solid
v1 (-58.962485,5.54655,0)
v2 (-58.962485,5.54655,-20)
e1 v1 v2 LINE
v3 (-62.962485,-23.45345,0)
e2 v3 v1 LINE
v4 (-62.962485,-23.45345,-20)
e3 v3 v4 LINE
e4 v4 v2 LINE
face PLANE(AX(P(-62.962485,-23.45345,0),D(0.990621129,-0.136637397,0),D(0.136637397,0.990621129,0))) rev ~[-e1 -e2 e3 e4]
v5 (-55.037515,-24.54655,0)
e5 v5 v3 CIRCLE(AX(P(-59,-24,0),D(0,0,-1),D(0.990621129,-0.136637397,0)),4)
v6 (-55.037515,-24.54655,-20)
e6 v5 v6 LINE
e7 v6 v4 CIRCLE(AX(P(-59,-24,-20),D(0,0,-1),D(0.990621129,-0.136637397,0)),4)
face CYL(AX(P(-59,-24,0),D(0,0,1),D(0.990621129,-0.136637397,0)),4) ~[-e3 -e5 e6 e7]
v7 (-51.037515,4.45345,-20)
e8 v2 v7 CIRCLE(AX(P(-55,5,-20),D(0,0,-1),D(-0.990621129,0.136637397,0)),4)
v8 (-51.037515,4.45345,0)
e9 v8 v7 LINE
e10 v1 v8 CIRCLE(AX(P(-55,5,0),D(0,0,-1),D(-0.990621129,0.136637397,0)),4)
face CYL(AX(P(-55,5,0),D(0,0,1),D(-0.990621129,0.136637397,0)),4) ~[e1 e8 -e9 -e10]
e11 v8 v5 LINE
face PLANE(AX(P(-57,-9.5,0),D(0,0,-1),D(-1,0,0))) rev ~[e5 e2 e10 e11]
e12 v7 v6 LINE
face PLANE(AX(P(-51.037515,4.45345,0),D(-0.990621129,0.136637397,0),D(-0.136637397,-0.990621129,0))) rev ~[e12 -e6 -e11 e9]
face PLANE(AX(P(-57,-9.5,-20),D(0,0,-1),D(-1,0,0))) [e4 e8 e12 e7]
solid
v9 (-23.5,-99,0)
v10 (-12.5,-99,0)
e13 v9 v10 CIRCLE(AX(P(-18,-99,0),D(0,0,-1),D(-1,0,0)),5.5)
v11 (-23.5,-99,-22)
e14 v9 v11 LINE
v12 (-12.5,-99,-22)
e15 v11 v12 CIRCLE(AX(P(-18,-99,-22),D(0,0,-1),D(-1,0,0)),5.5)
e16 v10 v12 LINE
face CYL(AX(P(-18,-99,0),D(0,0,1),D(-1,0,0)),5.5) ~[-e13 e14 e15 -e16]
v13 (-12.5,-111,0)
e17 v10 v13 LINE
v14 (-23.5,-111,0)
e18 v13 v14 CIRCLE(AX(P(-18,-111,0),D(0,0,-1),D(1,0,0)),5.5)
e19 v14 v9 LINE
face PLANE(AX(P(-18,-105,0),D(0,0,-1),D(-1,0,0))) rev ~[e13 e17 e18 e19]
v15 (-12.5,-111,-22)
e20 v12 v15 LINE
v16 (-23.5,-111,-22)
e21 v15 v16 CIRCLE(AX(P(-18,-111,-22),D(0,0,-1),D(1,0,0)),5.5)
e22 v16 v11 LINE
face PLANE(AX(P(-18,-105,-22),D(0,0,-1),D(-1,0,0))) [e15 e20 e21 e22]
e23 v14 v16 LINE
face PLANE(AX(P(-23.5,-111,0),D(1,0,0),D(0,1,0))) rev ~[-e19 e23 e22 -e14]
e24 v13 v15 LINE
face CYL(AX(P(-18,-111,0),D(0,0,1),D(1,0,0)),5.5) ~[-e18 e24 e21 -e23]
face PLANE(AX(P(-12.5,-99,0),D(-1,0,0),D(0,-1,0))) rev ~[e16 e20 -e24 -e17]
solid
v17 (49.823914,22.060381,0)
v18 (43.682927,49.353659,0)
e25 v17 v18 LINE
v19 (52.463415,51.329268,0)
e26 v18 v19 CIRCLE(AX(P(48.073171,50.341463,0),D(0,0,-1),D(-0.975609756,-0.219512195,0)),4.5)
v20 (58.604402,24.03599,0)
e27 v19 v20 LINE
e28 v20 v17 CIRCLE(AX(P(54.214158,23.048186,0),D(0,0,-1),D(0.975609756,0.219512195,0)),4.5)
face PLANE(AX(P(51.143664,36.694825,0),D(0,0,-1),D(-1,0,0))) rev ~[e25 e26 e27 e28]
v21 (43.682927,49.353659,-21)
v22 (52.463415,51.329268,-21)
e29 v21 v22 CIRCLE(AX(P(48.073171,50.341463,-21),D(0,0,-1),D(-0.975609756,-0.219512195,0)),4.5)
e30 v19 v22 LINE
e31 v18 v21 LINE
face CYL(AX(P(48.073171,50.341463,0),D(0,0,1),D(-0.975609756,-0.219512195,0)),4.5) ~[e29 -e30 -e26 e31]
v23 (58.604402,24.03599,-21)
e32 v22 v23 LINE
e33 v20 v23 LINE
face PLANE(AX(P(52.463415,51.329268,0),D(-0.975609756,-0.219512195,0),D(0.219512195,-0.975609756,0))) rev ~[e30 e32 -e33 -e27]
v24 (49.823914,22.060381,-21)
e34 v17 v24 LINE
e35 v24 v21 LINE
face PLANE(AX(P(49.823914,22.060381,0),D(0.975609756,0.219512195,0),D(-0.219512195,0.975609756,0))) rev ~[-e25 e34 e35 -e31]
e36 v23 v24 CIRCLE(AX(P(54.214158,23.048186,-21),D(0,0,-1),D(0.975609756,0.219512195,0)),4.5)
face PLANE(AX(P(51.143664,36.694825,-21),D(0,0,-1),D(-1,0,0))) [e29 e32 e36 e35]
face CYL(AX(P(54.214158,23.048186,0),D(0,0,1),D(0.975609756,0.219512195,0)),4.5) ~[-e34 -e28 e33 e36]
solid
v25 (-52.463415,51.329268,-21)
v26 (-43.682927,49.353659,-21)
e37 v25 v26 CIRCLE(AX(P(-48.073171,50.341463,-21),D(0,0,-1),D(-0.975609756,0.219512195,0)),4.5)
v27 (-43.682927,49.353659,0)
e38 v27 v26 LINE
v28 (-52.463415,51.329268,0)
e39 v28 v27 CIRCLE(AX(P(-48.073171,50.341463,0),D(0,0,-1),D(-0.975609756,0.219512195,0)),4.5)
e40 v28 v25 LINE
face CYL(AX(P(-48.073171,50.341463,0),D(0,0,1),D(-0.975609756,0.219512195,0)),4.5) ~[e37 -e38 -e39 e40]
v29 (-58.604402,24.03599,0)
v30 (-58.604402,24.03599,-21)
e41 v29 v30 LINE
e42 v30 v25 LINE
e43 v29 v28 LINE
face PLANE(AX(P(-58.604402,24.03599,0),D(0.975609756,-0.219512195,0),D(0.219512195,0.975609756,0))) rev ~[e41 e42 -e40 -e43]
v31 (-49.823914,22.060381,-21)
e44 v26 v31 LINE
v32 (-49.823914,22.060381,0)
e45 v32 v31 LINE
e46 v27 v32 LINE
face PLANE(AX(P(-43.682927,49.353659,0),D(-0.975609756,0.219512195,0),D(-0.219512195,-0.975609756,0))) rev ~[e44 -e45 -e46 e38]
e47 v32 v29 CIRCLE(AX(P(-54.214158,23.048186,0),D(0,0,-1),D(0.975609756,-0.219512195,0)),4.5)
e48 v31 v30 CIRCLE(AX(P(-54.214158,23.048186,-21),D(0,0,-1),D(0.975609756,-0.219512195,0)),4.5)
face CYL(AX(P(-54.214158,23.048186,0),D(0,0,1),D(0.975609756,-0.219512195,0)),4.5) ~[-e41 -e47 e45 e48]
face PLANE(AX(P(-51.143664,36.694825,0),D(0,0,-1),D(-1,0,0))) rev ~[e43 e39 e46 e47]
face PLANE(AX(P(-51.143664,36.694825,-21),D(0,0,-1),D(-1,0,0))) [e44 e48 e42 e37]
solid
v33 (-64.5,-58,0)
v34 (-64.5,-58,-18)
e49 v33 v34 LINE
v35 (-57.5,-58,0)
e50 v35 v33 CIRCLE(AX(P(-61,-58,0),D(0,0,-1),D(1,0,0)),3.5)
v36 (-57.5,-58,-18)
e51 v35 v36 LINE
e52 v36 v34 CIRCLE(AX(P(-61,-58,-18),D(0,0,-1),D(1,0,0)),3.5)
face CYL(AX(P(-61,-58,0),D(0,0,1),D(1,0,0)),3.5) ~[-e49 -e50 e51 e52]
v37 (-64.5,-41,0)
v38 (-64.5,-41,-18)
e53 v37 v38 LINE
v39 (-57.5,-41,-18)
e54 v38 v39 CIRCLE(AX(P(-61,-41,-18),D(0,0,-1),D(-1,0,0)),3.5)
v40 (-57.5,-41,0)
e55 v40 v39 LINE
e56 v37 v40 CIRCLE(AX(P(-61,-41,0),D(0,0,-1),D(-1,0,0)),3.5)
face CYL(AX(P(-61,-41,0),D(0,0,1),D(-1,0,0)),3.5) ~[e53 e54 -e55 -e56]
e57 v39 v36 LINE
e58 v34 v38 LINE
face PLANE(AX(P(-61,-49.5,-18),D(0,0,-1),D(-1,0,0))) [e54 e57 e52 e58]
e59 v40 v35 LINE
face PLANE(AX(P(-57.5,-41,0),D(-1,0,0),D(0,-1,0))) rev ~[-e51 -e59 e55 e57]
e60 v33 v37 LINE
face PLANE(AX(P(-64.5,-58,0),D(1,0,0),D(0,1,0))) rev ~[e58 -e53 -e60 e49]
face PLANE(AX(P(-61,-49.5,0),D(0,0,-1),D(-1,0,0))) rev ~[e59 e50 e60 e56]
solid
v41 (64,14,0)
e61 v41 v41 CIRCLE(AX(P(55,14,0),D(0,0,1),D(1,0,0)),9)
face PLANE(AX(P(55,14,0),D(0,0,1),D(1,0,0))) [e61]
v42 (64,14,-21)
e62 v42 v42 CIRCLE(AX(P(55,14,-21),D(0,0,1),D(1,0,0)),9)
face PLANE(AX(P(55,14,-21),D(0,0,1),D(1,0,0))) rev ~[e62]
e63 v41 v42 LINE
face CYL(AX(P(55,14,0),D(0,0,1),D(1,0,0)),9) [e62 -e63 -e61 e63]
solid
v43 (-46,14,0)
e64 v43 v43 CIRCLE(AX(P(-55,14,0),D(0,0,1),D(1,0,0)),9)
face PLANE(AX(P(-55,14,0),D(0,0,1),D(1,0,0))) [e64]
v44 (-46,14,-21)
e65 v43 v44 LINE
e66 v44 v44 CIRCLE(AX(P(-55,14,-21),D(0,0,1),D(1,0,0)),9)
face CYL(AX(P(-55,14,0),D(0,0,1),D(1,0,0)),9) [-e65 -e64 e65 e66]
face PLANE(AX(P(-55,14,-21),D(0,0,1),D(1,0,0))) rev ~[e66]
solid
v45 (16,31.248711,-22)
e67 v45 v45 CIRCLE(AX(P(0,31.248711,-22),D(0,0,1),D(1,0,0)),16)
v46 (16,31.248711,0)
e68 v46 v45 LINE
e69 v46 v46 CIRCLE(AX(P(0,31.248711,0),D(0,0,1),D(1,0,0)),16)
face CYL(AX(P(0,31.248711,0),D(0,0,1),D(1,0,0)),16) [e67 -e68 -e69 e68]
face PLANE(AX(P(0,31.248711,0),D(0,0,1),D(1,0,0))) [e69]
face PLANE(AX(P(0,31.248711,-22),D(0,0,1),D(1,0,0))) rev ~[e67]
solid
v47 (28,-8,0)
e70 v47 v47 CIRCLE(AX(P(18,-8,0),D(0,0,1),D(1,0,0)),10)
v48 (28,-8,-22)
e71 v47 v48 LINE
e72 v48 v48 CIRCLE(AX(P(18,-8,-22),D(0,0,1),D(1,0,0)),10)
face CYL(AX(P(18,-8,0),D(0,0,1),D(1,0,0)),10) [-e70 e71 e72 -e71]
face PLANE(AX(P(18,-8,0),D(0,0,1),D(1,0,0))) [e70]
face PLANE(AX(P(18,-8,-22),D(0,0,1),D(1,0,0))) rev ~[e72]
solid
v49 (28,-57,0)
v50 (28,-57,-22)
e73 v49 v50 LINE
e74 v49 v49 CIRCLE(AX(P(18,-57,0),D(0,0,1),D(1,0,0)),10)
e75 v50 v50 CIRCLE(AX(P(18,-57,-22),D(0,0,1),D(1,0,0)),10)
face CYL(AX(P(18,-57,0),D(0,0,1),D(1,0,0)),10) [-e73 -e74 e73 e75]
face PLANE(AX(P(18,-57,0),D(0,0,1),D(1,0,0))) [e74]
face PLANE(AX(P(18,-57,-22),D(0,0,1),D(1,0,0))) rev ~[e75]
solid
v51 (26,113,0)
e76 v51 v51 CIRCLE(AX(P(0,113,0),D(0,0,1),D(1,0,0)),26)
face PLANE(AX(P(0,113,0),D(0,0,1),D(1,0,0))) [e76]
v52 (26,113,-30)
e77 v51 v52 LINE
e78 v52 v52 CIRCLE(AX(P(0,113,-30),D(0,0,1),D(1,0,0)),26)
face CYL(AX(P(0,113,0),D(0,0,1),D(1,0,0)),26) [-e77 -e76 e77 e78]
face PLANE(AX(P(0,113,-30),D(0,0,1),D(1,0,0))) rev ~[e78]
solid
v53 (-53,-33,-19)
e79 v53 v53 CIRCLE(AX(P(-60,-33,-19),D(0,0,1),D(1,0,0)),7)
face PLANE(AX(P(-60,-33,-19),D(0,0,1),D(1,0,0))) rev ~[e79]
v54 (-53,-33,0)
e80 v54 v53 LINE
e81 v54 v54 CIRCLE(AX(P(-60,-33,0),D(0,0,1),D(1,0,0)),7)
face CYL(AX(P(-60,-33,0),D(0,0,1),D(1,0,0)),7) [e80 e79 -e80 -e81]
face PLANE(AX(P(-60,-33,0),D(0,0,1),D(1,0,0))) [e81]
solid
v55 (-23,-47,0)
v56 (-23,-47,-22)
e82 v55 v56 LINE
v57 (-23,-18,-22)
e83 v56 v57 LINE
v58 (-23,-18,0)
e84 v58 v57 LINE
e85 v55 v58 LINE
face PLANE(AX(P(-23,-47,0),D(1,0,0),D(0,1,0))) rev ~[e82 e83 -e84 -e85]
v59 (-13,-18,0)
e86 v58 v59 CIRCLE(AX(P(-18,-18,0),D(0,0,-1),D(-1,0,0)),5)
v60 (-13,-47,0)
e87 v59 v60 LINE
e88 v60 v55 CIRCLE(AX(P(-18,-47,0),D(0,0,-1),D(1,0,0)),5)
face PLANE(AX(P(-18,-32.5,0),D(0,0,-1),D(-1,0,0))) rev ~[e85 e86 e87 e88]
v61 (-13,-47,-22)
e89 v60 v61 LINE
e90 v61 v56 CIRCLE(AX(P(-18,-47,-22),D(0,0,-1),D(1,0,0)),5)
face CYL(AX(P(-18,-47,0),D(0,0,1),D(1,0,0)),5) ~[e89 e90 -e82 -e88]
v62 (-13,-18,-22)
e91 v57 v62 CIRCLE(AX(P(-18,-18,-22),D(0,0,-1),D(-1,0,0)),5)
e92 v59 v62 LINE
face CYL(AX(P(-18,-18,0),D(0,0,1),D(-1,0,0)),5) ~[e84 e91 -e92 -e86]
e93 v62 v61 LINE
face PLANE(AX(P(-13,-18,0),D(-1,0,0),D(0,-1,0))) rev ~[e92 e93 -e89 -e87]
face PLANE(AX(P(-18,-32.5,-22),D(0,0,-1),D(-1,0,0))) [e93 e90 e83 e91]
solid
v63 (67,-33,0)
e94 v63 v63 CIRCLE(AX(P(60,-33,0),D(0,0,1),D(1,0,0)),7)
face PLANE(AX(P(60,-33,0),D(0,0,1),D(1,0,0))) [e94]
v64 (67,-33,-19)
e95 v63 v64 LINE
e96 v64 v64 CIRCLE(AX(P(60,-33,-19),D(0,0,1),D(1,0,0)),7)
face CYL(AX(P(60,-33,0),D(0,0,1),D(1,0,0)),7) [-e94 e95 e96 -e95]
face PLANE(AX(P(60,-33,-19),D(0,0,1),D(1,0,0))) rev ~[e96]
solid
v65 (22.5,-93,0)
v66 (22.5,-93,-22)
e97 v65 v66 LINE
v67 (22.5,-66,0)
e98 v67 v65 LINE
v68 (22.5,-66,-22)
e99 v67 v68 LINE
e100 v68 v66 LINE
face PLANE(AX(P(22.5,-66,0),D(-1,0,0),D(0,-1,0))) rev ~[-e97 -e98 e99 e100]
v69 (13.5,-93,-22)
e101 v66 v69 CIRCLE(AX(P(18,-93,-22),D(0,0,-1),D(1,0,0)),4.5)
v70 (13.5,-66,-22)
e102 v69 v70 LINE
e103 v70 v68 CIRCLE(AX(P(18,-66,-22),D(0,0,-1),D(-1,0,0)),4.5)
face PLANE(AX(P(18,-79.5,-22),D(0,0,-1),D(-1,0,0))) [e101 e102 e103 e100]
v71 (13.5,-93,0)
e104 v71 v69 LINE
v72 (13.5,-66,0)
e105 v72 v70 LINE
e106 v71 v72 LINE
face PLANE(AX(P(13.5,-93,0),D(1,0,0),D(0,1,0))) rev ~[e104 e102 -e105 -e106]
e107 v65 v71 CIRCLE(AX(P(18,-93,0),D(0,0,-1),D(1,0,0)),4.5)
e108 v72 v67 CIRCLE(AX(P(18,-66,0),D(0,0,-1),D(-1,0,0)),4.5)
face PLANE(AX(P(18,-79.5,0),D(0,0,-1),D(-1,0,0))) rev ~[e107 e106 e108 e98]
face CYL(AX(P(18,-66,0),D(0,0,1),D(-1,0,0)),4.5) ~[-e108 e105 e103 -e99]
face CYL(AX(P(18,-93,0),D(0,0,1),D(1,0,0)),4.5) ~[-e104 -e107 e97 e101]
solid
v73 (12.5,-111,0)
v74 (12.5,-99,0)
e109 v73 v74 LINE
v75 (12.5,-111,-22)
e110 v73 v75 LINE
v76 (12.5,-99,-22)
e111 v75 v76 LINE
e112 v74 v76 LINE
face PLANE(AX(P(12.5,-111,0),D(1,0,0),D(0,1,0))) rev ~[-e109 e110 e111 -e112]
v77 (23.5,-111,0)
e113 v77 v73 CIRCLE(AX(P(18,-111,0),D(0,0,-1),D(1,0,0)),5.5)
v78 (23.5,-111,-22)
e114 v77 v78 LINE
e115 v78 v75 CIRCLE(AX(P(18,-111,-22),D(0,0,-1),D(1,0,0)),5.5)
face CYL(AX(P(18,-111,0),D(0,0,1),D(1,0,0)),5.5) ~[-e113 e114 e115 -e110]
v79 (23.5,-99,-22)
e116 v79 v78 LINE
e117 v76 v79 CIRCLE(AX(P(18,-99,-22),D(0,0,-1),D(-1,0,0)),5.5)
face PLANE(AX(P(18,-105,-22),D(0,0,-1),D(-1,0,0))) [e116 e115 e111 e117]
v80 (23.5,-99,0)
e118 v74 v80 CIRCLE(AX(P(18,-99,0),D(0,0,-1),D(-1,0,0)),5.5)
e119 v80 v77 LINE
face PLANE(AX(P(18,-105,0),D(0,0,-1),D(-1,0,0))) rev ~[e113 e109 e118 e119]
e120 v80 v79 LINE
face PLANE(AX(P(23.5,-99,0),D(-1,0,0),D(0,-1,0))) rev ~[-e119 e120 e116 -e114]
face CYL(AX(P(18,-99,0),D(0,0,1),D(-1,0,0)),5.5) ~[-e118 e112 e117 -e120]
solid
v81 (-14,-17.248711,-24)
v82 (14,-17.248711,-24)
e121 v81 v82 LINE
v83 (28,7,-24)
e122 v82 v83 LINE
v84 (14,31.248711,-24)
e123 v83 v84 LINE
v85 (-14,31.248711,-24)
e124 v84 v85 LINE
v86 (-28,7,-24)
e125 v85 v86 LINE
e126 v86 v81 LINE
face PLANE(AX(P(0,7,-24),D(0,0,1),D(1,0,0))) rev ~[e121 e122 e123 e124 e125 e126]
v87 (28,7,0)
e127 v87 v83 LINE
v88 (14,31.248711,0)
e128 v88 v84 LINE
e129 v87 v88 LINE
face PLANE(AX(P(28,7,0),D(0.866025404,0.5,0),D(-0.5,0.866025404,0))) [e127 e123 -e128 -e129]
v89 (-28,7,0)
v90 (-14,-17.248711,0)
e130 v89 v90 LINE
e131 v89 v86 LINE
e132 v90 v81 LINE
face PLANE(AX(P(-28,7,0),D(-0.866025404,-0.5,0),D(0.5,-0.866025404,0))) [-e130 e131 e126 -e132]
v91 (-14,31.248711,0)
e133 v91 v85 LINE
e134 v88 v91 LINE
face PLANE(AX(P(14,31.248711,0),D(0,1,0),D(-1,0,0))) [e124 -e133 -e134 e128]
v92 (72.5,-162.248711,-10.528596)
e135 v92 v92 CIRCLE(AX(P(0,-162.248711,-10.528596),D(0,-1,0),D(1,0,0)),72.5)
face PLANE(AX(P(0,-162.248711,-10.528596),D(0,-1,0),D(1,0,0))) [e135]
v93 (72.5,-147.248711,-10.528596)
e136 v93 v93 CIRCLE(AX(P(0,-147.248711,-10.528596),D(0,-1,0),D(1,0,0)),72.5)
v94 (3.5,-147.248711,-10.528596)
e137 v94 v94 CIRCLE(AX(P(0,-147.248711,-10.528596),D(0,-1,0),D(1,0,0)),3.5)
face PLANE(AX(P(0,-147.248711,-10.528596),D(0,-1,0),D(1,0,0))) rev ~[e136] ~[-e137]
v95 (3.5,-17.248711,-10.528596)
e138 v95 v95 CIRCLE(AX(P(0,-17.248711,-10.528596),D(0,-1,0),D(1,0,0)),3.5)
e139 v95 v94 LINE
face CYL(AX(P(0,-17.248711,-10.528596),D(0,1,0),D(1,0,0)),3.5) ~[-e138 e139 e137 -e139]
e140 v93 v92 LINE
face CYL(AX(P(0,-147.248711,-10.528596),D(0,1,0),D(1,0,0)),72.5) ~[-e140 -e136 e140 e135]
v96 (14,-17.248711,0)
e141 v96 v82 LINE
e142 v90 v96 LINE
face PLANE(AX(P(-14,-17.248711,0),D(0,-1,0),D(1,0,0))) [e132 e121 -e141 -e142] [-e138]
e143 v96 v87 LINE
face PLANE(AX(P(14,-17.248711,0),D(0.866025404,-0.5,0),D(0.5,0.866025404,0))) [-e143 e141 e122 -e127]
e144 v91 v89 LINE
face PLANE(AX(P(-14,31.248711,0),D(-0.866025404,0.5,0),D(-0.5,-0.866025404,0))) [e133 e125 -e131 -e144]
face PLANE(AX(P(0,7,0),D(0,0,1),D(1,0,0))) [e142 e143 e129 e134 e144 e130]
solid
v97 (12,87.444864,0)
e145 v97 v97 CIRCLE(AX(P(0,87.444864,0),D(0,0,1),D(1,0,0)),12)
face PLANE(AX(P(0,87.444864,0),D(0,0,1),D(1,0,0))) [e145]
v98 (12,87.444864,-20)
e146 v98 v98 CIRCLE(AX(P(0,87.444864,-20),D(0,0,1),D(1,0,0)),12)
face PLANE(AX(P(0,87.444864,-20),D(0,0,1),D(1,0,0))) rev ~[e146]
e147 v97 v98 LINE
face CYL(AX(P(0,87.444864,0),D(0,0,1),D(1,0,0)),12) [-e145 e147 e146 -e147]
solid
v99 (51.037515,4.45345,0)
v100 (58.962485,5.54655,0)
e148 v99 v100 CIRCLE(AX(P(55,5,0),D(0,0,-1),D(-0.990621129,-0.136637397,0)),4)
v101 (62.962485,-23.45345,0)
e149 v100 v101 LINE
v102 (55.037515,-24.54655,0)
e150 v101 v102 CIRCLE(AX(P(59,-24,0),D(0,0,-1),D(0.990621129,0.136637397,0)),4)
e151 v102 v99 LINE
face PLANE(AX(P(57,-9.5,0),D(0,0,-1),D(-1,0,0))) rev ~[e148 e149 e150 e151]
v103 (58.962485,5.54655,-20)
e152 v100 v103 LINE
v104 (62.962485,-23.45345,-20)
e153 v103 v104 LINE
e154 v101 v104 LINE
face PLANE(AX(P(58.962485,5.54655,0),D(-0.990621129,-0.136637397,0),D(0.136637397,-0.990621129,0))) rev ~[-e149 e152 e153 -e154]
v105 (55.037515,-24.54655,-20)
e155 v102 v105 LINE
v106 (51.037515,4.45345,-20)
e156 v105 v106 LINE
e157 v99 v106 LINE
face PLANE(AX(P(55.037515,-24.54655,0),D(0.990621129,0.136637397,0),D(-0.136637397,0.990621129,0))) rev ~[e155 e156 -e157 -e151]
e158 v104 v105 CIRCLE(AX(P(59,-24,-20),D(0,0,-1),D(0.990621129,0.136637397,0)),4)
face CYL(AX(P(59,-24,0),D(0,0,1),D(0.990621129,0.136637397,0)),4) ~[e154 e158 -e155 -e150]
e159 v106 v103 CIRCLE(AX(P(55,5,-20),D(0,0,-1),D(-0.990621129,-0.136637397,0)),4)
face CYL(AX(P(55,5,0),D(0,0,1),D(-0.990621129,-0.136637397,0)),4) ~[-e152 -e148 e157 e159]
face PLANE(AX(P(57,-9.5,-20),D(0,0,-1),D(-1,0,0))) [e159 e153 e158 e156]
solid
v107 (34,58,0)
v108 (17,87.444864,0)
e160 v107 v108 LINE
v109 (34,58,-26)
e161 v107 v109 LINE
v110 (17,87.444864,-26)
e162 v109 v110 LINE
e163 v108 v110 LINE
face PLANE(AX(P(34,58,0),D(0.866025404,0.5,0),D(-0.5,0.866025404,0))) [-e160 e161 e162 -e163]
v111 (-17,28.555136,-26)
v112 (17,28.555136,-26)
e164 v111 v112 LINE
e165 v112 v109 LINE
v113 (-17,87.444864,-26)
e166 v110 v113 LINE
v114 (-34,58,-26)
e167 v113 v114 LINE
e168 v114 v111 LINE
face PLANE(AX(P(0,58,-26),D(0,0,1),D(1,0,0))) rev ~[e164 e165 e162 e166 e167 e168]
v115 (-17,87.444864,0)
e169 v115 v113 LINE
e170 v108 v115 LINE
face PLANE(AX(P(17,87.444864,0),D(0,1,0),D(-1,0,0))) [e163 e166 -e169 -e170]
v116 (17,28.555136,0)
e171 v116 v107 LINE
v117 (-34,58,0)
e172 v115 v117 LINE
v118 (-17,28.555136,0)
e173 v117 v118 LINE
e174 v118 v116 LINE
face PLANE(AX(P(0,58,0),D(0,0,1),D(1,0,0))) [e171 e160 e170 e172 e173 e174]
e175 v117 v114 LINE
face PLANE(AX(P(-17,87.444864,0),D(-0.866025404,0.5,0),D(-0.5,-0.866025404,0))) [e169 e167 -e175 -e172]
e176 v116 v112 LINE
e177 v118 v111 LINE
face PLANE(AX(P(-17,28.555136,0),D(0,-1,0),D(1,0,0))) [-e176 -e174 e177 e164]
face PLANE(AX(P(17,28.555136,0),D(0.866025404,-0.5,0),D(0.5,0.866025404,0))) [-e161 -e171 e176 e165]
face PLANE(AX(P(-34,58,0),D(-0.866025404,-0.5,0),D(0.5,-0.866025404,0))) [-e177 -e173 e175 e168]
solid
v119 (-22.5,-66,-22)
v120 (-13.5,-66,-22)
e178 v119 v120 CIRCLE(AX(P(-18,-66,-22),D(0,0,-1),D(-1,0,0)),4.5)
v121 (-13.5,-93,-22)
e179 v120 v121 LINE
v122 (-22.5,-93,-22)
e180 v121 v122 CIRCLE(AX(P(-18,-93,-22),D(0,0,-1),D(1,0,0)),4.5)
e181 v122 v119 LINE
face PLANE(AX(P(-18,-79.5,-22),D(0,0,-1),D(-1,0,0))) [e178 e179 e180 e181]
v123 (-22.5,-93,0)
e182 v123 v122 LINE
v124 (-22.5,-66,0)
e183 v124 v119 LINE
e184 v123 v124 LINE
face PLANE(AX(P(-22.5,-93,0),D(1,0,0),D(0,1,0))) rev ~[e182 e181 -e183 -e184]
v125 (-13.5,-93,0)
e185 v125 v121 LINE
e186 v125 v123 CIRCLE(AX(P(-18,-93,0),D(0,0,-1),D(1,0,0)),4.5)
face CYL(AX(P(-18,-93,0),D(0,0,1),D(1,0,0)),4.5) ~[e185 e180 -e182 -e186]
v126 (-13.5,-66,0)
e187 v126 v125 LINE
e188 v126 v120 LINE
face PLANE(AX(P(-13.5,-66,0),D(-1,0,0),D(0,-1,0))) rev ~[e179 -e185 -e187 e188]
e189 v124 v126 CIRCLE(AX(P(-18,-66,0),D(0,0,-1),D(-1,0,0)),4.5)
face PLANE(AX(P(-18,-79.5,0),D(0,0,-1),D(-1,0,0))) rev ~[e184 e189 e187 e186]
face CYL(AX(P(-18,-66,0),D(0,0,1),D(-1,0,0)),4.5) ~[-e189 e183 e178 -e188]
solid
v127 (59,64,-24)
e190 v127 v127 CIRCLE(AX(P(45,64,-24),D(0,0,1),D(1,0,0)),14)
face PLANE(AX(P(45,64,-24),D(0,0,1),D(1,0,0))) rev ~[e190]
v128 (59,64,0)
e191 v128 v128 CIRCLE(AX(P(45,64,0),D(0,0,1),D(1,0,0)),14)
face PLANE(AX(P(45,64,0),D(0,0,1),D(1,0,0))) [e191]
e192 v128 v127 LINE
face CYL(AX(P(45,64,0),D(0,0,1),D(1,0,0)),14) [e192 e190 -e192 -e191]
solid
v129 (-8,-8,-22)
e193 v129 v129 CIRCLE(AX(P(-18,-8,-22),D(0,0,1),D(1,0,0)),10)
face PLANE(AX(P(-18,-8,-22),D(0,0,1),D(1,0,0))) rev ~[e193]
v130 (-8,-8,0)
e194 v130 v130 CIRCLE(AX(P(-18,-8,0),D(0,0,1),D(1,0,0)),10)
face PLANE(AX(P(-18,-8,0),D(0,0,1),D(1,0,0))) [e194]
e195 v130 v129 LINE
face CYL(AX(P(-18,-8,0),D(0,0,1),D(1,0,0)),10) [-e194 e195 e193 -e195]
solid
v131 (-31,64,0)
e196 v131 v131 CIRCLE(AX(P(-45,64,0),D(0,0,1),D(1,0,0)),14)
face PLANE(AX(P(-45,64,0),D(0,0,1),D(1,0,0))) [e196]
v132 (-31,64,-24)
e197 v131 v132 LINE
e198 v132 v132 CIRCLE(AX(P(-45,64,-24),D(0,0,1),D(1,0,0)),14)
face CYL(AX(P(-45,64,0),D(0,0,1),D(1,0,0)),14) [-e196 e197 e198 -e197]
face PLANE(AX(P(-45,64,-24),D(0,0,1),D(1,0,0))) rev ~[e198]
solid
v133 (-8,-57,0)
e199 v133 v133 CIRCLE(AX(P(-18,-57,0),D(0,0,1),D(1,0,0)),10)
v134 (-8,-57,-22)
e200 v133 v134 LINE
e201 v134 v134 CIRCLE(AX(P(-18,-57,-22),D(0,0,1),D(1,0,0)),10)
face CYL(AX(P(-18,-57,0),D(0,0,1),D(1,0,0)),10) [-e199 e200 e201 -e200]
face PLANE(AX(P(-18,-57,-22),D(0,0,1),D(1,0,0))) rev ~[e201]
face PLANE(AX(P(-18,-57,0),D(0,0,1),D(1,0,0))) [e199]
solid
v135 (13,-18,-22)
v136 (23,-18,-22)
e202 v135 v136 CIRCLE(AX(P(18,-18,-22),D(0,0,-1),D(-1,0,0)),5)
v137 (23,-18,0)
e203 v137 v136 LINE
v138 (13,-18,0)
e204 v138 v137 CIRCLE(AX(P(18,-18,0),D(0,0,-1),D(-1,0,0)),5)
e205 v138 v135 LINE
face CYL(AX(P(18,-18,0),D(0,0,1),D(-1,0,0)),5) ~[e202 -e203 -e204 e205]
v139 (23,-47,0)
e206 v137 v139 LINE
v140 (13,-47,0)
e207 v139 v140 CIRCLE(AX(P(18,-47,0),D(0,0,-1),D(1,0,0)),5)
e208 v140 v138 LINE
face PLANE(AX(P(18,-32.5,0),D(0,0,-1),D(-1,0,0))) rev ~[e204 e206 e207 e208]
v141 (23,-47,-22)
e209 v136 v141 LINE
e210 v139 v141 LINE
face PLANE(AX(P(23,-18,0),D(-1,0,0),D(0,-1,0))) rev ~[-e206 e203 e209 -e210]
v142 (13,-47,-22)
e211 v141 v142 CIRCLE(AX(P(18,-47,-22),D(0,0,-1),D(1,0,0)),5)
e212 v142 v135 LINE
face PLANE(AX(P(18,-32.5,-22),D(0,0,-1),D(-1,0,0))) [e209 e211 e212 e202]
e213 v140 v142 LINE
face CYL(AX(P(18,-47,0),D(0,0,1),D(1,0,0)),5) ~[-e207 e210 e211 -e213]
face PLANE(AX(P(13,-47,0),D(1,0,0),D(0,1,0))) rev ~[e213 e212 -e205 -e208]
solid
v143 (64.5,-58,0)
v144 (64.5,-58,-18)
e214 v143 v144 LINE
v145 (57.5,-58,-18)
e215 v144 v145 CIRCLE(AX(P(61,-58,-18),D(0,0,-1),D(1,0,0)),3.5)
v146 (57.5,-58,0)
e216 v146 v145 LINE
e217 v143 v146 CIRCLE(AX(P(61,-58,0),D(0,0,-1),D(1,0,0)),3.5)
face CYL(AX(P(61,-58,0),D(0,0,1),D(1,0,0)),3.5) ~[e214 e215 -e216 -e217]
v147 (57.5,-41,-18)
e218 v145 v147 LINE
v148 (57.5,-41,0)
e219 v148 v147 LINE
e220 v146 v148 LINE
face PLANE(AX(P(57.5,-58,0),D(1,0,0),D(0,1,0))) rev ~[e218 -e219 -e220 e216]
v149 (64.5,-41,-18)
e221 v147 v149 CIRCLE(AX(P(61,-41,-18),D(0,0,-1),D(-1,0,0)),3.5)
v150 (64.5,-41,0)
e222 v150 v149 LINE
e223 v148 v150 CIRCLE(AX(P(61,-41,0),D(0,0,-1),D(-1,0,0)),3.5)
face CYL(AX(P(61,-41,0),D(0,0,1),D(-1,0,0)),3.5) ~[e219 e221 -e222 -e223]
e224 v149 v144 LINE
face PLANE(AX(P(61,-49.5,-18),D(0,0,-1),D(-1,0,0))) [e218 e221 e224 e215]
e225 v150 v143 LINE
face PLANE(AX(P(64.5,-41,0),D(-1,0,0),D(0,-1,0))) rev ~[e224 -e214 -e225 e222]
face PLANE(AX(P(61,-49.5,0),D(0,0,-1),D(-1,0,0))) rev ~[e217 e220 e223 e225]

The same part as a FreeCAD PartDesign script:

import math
import FreeCAD as App
import Part
import Sketcher
Q = App.Units.Quantity


def add_polygon(sketch, points):
    """Adds a closed chain of lines whose ends are joined by coincident constraints."""
    first, n = sketch.GeometryCount, len(points)
    for a, b in zip(points, points[1:] + points[:1]):
        sketch.addGeometry(Part.LineSegment(App.Vector(*a, 0), App.Vector(*b, 0)), False)
    for i in range(n):
        sketch.addConstraint(Sketcher.Constraint("Coincident", first + i, 2, first + (i + 1) % n, 1))

doc = App.newDocument("Part")
body = doc.addObject("PartDesign::Body", "Body")

sketch1 = body.newObject("Sketcher::SketchObject", "Sketch")
sketch1.AttachmentSupport = (doc.getObject("XY_Plane"), [""])
sketch1.MapMode = "FlatFace"
sketch1.addGeometry([
    Part.LineSegment(App.Vector(-24, -99, 0), App.Vector(-24, -111, 0)),
    Part.ArcOfCircle(Part.Circle(App.Vector(-18, -111, 0), App.Vector(0, 0, 1), 6), math.radians(180), math.radians(360)),
    Part.LineSegment(App.Vector(-12, -111, 0), App.Vector(-12, -99, 0)),
    Part.ArcOfCircle(Part.Circle(App.Vector(-18, -99, 0), App.Vector(0, 0, 1), 6), math.radians(0), math.radians(180)),
], False)
sketch1.addConstraint([
    Sketcher.Constraint("Tangent", 0, 2, 1, 1),
    Sketcher.Constraint("Tangent", 1, 2, 2, 1),
    Sketcher.Constraint("Tangent", 2, 2, 3, 1),
    Sketcher.Constraint("Tangent", 3, 2, 0, 1),
    Sketcher.Constraint("Vertical", 0),
    Sketcher.Constraint("Vertical", 2),
    Sketcher.Constraint("Radius", 1, Q("5.5 mm")),
    Sketcher.Constraint("DistanceY", 0, 2, 0, 1, Q("12 mm")),
    Sketcher.Constraint("DistanceX", 1, 3, -1, 1, Q("18 mm")),
    Sketcher.Constraint("DistanceY", 1, 3, -1, 1, Q("111 mm")),
])
pad1 = body.newObject("PartDesign::Pad", "Pad")
pad1.Profile = sketch1
pad1.Length = 22
pad1.Reversed = True
body2 = doc.addObject("PartDesign::Body", "Body001")

sketch2 = body2.newObject("Sketcher::SketchObject", "Sketch001")
sketch2.AttachmentSupport = (doc.getObject("XY_Plane001"), [""])
sketch2.MapMode = "FlatFace"
sketch2.addGeometry([
    Part.LineSegment(App.Vector(12, -99, 0), App.Vector(12, -111, 0)),
    Part.ArcOfCircle(Part.Circle(App.Vector(18, -111, 0), App.Vector(0, 0, 1), 6), math.radians(180), math.radians(360)),
    Part.LineSegment(App.Vector(24, -111, 0), App.Vector(24, -99, 0)),
    Part.ArcOfCircle(Part.Circle(App.Vector(18, -99, 0), App.Vector(0, 0, 1), 6), math.radians(0), math.radians(180)),
], False)
sketch2.addConstraint([
    Sketcher.Constraint("Tangent", 0, 2, 1, 1),
    Sketcher.Constraint("Tangent", 1, 2, 2, 1),
    Sketcher.Constraint("Tangent", 2, 2, 3, 1),
    Sketcher.Constraint("Tangent", 3, 2, 0, 1),
    Sketcher.Constraint("Vertical", 0),
    Sketcher.Constraint("Vertical", 2),
    Sketcher.Constraint("Radius", 1, Q("5.5 mm")),
    Sketcher.Constraint("DistanceY", 0, 2, 0, 1, Q("12 mm")),
    Sketcher.Constraint("DistanceX", -1, 1, 1, 3, Q("18 mm")),
    Sketcher.Constraint("DistanceY", 1, 3, -1, 1, Q("111 mm")),
])
pad2 = body2.newObject("PartDesign::Pad", "Pad001")
pad2.Profile = sketch2
pad2.Length = 22
pad2.Reversed = True
body3 = doc.addObject("PartDesign::Body", "Body002")

sketch3 = body3.newObject("Sketcher::SketchObject", "Sketch002")
sketch3.AttachmentSupport = (doc.getObject("XY_Plane002"), [""])
sketch3.MapMode = "FlatFace"
sketch3.addGeometry([
    Part.LineSegment(App.Vector(-22.5, -66, 0), App.Vector(-22.5, -93, 0)),
    Part.ArcOfCircle(Part.Circle(App.Vector(-18, -93, 0), App.Vector(0, 0, 1), 4.5), math.radians(180), math.radians(360)),
    Part.LineSegment(App.Vector(-13.5, -93, 0), App.Vector(-13.5, -66, 0)),
    Part.ArcOfCircle(Part.Circle(App.Vector(-18, -66, 0), App.Vector(0, 0, 1), 4.5), math.radians(0), math.radians(180)),
], False)
sketch3.addConstraint([
    Sketcher.Constraint("Tangent", 0, 2, 1, 1),
    Sketcher.Constraint("Tangent", 1, 2, 2, 1),
    Sketcher.Constraint("Tangent", 2, 2, 3, 1),
    Sketcher.Constraint("Tangent", 3, 2, 0, 1),
    Sketcher.Constraint("Vertical", 0),
    Sketcher.Constraint("Vertical", 2),
    Sketcher.Constraint("Radius", 1, Q("4.5 mm")),
    Sketcher.Constraint("DistanceY", 0, 2, 0, 1, Q("27 mm")),
    Sketcher.Constraint("DistanceX", 1, 3, -1, 1, Q("18 mm")),
    Sketcher.Constraint("DistanceY", 1, 3, -1, 1, Q("93 mm")),
])
pad3 = body3.newObject("PartDesign::Pad", "Pad002")
pad3.Profile = sketch3
pad3.Length = 22
pad3.Reversed = True
body4 = doc.addObject("PartDesign::Body", "Body003")

sketch4 = body4.newObject("Sketcher::SketchObject", "Sketch003")
sketch4.AttachmentSupport = (doc.getObject("XY_Plane003"), [""])
sketch4.MapMode = "FlatFace"
sketch4.addGeometry(Part.Circle(App.Vector(-18, -57, 0), App.Vector(0, 0, 1), 10), False)
sketch4.addConstraint([
    Sketcher.Constraint("Diameter", 0, Q("20 mm")),
    Sketcher.Constraint("DistanceX", 0, 3, -1, 1, Q("18 mm")),
    Sketcher.Constraint("DistanceY", 0, 3, -1, 1, Q("57 mm")),
])
pad4 = body4.newObject("PartDesign::Pad", "Pad003")
pad4.Profile = sketch4
pad4.Length = 22
pad4.Reversed = True
body5 = doc.addObject("PartDesign::Body", "Body004")

sketch5 = body5.newObject("Sketcher::SketchObject", "Sketch004")
sketch5.AttachmentSupport = (doc.getObject("XY_Plane004"), [""])
sketch5.MapMode = "FlatFace"
sketch5.addGeometry([
    Part.LineSegment(App.Vector(-23, -18, 0), App.Vector(-23, -47, 0)),
    Part.ArcOfCircle(Part.Circle(App.Vector(-18, -47, 0), App.Vector(0, 0, 1), 5), math.radians(180), math.radians(360)),
    Part.LineSegment(App.Vector(-13, -47, 0), App.Vector(-13, -18, 0)),
    Part.ArcOfCircle(Part.Circle(App.Vector(-18, -18, 0), App.Vector(0, 0, 1), 5), math.radians(0), math.radians(180)),
], False)
sketch5.addConstraint([
    Sketcher.Constraint("Tangent", 0, 2, 1, 1),
    Sketcher.Constraint("Tangent", 1, 2, 2, 1),
    Sketcher.Constraint("Tangent", 2, 2, 3, 1),
    Sketcher.Constraint("Tangent", 3, 2, 0, 1),
    Sketcher.Constraint("Vertical", 0),
    Sketcher.Constraint("Vertical", 2),
    Sketcher.Constraint("Radius", 1, Q("5 mm")),
    Sketcher.Constraint("DistanceY", 0, 2, 0, 1, Q("29 mm")),
    Sketcher.Constraint("DistanceX", 1, 3, -1, 1, Q("18 mm")),
    Sketcher.Constraint("DistanceY", 1, 3, -1, 1, Q("47 mm")),
])
pad5 = body5.newObject("PartDesign::Pad", "Pad004")
pad5.Profile = sketch5
pad5.Length = 22
pad5.Reversed = True
body6 = doc.addObject("PartDesign::Body", "Body005")

sketch6 = body6.newObject("Sketcher::SketchObject", "Sketch005")
sketch6.AttachmentSupport = (doc.getObject("XY_Plane005"), [""])
sketch6.MapMode = "FlatFace"
sketch6.addGeometry(Part.Circle(App.Vector(-18, -8, 0), App.Vector(0, 0, 1), 10), False)
sketch6.addConstraint([
    Sketcher.Constraint("Diameter", 0, Q("20 mm")),
    Sketcher.Constraint("DistanceX", 0, 3, -1, 1, Q("18 mm")),
    Sketcher.Constraint("DistanceY", 0, 3, -1, 1, Q("8 mm")),
])
pad6 = body6.newObject("PartDesign::Pad", "Pad005")
pad6.Profile = sketch6
pad6.Length = 22
pad6.Reversed = True
body7 = doc.addObject("PartDesign::Body", "Body006")

sketch7 = body7.newObject("Sketcher::SketchObject", "Sketch006")
sketch7.AttachmentSupport = (doc.getObject("XY_Plane006"), [""])
sketch7.MapMode = "FlatFace"
sketch7.addGeometry([
    Part.LineSegment(App.Vector(13.5, -66, 0), App.Vector(13.5, -93, 0)),
    Part.ArcOfCircle(Part.Circle(App.Vector(18, -93, 0), App.Vector(0, 0, 1), 4.5), math.radians(180), math.radians(360)),
    Part.LineSegment(App.Vector(22.5, -93, 0), App.Vector(22.5, -66, 0)),
    Part.ArcOfCircle(Part.Circle(App.Vector(18, -66, 0), App.Vector(0, 0, 1), 4.5), math.radians(0), math.radians(180)),
], False)
sketch7.addConstraint([
    Sketcher.Constraint("Tangent", 0, 2, 1, 1),
    Sketcher.Constraint("Tangent", 1, 2, 2, 1),
    Sketcher.Constraint("Tangent", 2, 2, 3, 1),
    Sketcher.Constraint("Tangent", 3, 2, 0, 1),
    Sketcher.Constraint("Vertical", 0),
    Sketcher.Constraint("Vertical", 2),
    Sketcher.Constraint("Radius", 1, Q("4.5 mm")),
    Sketcher.Constraint("DistanceY", 0, 2, 0, 1, Q("27 mm")),
    Sketcher.Constraint("DistanceX", -1, 1, 1, 3, Q("18 mm")),
    Sketcher.Constraint("DistanceY", 1, 3, -1, 1, Q("93 mm")),
])
pad7 = body7.newObject("PartDesign::Pad", "Pad006")
pad7.Profile = sketch7
pad7.Length = 22
pad7.Reversed = True
body8 = doc.addObject("PartDesign::Body", "Body007")

sketch8 = body8.newObject("Sketcher::SketchObject", "Sketch007")
sketch8.AttachmentSupport = (doc.getObject("XY_Plane007"), [""])
sketch8.MapMode = "FlatFace"
sketch8.addGeometry(Part.Circle(App.Vector(18, -57, 0), App.Vector(0, 0, 1), 10), False)
sketch8.addConstraint([
    Sketcher.Constraint("Diameter", 0, Q("20 mm")),
    Sketcher.Constraint("DistanceX", -1, 1, 0, 3, Q("18 mm")),
    Sketcher.Constraint("DistanceY", 0, 3, -1, 1, Q("57 mm")),
])
pad8 = body8.newObject("PartDesign::Pad", "Pad007")
pad8.Profile = sketch8
pad8.Length = 22
pad8.Reversed = True
body9 = doc.addObject("PartDesign::Body", "Body008")

sketch9 = body9.newObject("Sketcher::SketchObject", "Sketch008")
sketch9.AttachmentSupport = (doc.getObject("XY_Plane008"), [""])
sketch9.MapMode = "FlatFace"
sketch9.addGeometry([
    Part.LineSegment(App.Vector(13, -18, 0), App.Vector(13, -47, 0)),
    Part.ArcOfCircle(Part.Circle(App.Vector(18, -47, 0), App.Vector(0, 0, 1), 5), math.radians(180), math.radians(360)),
    Part.LineSegment(App.Vector(23, -47, 0), App.Vector(23, -18, 0)),
    Part.ArcOfCircle(Part.Circle(App.Vector(18, -18, 0), App.Vector(0, 0, 1), 5), math.radians(0), math.radians(180)),
], False)
sketch9.addConstraint([
    Sketcher.Constraint("Tangent", 0, 2, 1, 1),
    Sketcher.Constraint("Tangent", 1, 2, 2, 1),
    Sketcher.Constraint("Tangent", 2, 2, 3, 1),
    Sketcher.Constraint("Tangent", 3, 2, 0, 1),
    Sketcher.Constraint("Vertical", 0),
    Sketcher.Constraint("Vertical", 2),
    Sketcher.Constraint("Radius", 1, Q("5 mm")),
    Sketcher.Constraint("DistanceY", 0, 2, 0, 1, Q("29 mm")),
    Sketcher.Constraint("DistanceX", -1, 1, 1, 3, Q("18 mm")),
    Sketcher.Constraint("DistanceY", 1, 3, -1, 1, Q("47 mm")),
])
pad9 = body9.newObject("PartDesign::Pad", "Pad008")
pad9.Profile = sketch9
pad9.Length = 22
pad9.Reversed = True
body10 = doc.addObject("PartDesign::Body", "Body009")

sketch10 = body10.newObject("Sketcher::SketchObject", "Sketch009")
sketch10.AttachmentSupport = (doc.getObject("XY_Plane009"), [""])
sketch10.MapMode = "FlatFace"
sketch10.addGeometry(Part.Circle(App.Vector(18, -8, 0), App.Vector(0, 0, 1), 10), False)
sketch10.addConstraint([
    Sketcher.Constraint("Diameter", 0, Q("20 mm")),
    Sketcher.Constraint("DistanceX", -1, 1, 0, 3, Q("18 mm")),
    Sketcher.Constraint("DistanceY", 0, 3, -1, 1, Q("8 mm")),
])
pad10 = body10.newObject("PartDesign::Pad", "Pad009")
pad10.Profile = sketch10
pad10.Length = 22
pad10.Reversed = True
body11 = doc.addObject("PartDesign::Body", "Body010")

sketch11 = body11.newObject("Sketcher::SketchObject", "Sketch010")
sketch11.AttachmentSupport = (doc.getObject("XY_Plane010"), [""])
sketch11.MapMode = "FlatFace"
add_polygon(sketch11, [(28, 7), (14, 31), (-14, 31), (-28, 7), (-14, -17), (14, -17)])
sketch11.addConstraint([
    Sketcher.Constraint("Horizontal", 1),
    Sketcher.Constraint("Horizontal", 4),
    Sketcher.Constraint("Symmetric", 2, 2, 5, 2, -2),
    Sketcher.Constraint("Parallel", 0, 3),
    Sketcher.Constraint("Parallel", 2, 5),
    Sketcher.Constraint("Vertical", 1, 2, 3, 2),
    Sketcher.Constraint("Vertical", 0, 2, 4, 2),
    Sketcher.Constraint("DistanceX", 1, 2, 1, 1, Q("28 mm")),
    Sketcher.Constraint("Angle", 0, Q("120 deg")),
    Sketcher.Constraint("Distance", 0, Q("28 mm")),
    Sketcher.Constraint("DistanceY", -1, 1, 2, 2, Q("7 mm")),
])
pad11 = body11.newObject("PartDesign::Pad", "Pad010")
pad11.Profile = sketch11
pad11.Length = 24
pad11.Reversed = True

sketch12 = body11.newObject("Sketcher::SketchObject", "Sketch011")
sketch12.AttachmentSupport = (doc.getObject("XZ_Plane010"), [""])
sketch12.MapMode = "FlatFace"
sketch12.AttachmentOffset = App.Placement(App.Vector(0, 0, 17.248711), App.Rotation())
sketch12.addGeometry(Part.Circle(App.Vector(0, -10.5, 0), App.Vector(0, 0, 1), 3.5), False)
sketch12.addConstraint([
    Sketcher.Constraint("PointOnObject", 0, 3, -2),
    Sketcher.Constraint("Diameter", 0, Q("7 mm")),
    Sketcher.Constraint("DistanceY", 0, 3, -1, 1, Q("10.528596 mm")),
])
pad12 = body11.newObject("PartDesign::Pad", "Pad011")
pad12.Profile = sketch12
pad12.Length = 130

sketch13 = body11.newObject("Sketcher::SketchObject", "Sketch012")
sketch13.AttachmentSupport = (doc.getObject("XZ_Plane010"), [""])
sketch13.MapMode = "FlatFace"
sketch13.AttachmentOffset = App.Placement(App.Vector(0, 0, 147.248711), App.Rotation())
sketch13.addGeometry(Part.Circle(App.Vector(0, -11, 0), App.Vector(0, 0, 1), 72), False)
sketch13.addConstraint([
    Sketcher.Constraint("PointOnObject", 0, 3, -2),
    Sketcher.Constraint("Diameter", 0, Q("145 mm")),
    Sketcher.Constraint("DistanceY", 0, 3, -1, 1, Q("10.528596 mm")),
])
pad13 = body11.newObject("PartDesign::Pad", "Pad012")
pad13.Profile = sketch13
pad13.Length = 15
body12 = doc.addObject("PartDesign::Body", "Body011")

sketch14 = body12.newObject("Sketcher::SketchObject", "Sketch013")
sketch14.AttachmentSupport = (doc.getObject("XY_Plane011"), [""])
sketch14.MapMode = "FlatFace"
sketch14.addGeometry(Part.Circle(App.Vector(0, 31, 0), App.Vector(0, 0, 1), 16), False)
sketch14.addConstraint([
    Sketcher.Constraint("PointOnObject", 0, 3, -2),
    Sketcher.Constraint("Diameter", 0, Q("32 mm")),
    Sketcher.Constraint("DistanceY", -1, 1, 0, 3, Q("31.248711 mm")),
])
pad14 = body12.newObject("PartDesign::Pad", "Pad013")
pad14.Profile = sketch14
pad14.Length = 22
pad14.Reversed = True
body13 = doc.addObject("PartDesign::Body", "Body012")

sketch15 = body13.newObject("Sketcher::SketchObject", "Sketch014")
sketch15.AttachmentSupport = (doc.getObject("XY_Plane012"), [""])
sketch15.MapMode = "FlatFace"
add_polygon(sketch15, [(34, 58), (17, 87), (-17, 87), (-34, 58), (-17, 29), (17, 29)])
sketch15.addConstraint([
    Sketcher.Constraint("Horizontal", 1),
    Sketcher.Constraint("Horizontal", 4),
    Sketcher.Constraint("Symmetric", 2, 2, 5, 2, -2),
    Sketcher.Constraint("Parallel", 0, 3),
    Sketcher.Constraint("Parallel", 2, 5),
    Sketcher.Constraint("Vertical", 1, 2, 3, 2),
    Sketcher.Constraint("Vertical", 0, 2, 4, 2),
    Sketcher.Constraint("DistanceX", 1, 2, 1, 1, Q("34 mm")),
    Sketcher.Constraint("Angle", 0, Q("120 deg")),
    Sketcher.Constraint("Distance", 0, Q("34 mm")),
    Sketcher.Constraint("DistanceY", -1, 1, 2, 2, Q("58 mm")),
])
pad15 = body13.newObject("PartDesign::Pad", "Pad014")
pad15.Profile = sketch15
pad15.Length = 26
pad15.Reversed = True
body14 = doc.addObject("PartDesign::Body", "Body013")

sketch16 = body14.newObject("Sketcher::SketchObject", "Sketch015")
sketch16.AttachmentSupport = (doc.getObject("XY_Plane013"), [""])
sketch16.MapMode = "FlatFace"
sketch16.addGeometry(Part.Circle(App.Vector(0, 87, 0), App.Vector(0, 0, 1), 12), False)
sketch16.addConstraint([
    Sketcher.Constraint("PointOnObject", 0, 3, -2),
    Sketcher.Constraint("Diameter", 0, Q("24 mm")),
    Sketcher.Constraint("DistanceY", -1, 1, 0, 3, Q("87.444864 mm")),
])
pad16 = body14.newObject("PartDesign::Pad", "Pad015")
pad16.Profile = sketch16
pad16.Length = 20
pad16.Reversed = True
body15 = doc.addObject("PartDesign::Body", "Body014")

sketch17 = body15.newObject("Sketcher::SketchObject", "Sketch016")
sketch17.AttachmentSupport = (doc.getObject("XY_Plane014"), [""])
sketch17.MapMode = "FlatFace"
sketch17.addGeometry(Part.Circle(App.Vector(0, 113, 0), App.Vector(0, 0, 1), 26), False)
sketch17.addConstraint([
    Sketcher.Constraint("PointOnObject", 0, 3, -2),
    Sketcher.Constraint("Diameter", 0, Q("52 mm")),
    Sketcher.Constraint("DistanceY", -1, 1, 0, 3, Q("113 mm")),
])
pad17 = body15.newObject("PartDesign::Pad", "Pad016")
pad17.Profile = sketch17
pad17.Length = 30
pad17.Reversed = True
body16 = doc.addObject("PartDesign::Body", "Body015")

sketch18 = body16.newObject("Sketcher::SketchObject", "Sketch017")
sketch18.AttachmentSupport = (doc.getObject("XY_Plane015"), [""])
sketch18.MapMode = "FlatFace"
sketch18.addGeometry(Part.Circle(App.Vector(-45, 64, 0), App.Vector(0, 0, 1), 14), False)
sketch18.addConstraint([
    Sketcher.Constraint("Diameter", 0, Q("28 mm")),
    Sketcher.Constraint("DistanceX", 0, 3, -1, 1, Q("45 mm")),
    Sketcher.Constraint("DistanceY", -1, 1, 0, 3, Q("64 mm")),
])
pad18 = body16.newObject("PartDesign::Pad", "Pad017")
pad18.Profile = sketch18
pad18.Length = 24
pad18.Reversed = True
body17 = doc.addObject("PartDesign::Body", "Body016")

sketch19 = body17.newObject("Sketcher::SketchObject", "Sketch018")
sketch19.AttachmentSupport = (doc.getObject("XY_Plane016"), [""])
sketch19.MapMode = "FlatFace"
sketch19.addGeometry([
    Part.LineSegment(App.Vector(-49.8, 22.1, 0), App.Vector(-43.7, 49.4, 0)),
    Part.ArcOfCircle(Part.Circle(App.Vector(-48.1, 50.3, 0), App.Vector(0, 0, 1), 4.5), math.radians(-13), math.radians(167)),
    Part.LineSegment(App.Vector(-52.5, 51.3, 0), App.Vector(-58.6, 24, 0)),
    Part.ArcOfCircle(Part.Circle(App.Vector(-54.2, 23, 0), App.Vector(0, 0, 1), 4.5), math.radians(167), math.radians(347)),
], False)
sketch19.addConstraint([
    Sketcher.Constraint("Tangent", 0, 2, 1, 1),
    Sketcher.Constraint("Tangent", 1, 2, 2, 1),
    Sketcher.Constraint("Tangent", 2, 2, 3, 1),
    Sketcher.Constraint("Tangent", 3, 2, 0, 1),
    Sketcher.Constraint("Equal", 1, 3),
    Sketcher.Constraint("Radius", 1, Q("4.5 mm")),
    Sketcher.Constraint("DistanceX", 1, 2, 3, 2, Q("2.6395 mm")),
    Sketcher.Constraint("Distance", 0, Q("27.97561 mm")),
    Sketcher.Constraint("DistanceX", 1, 3, -1, 1, Q("48.073171 mm")),
    Sketcher.Constraint("DistanceY", -1, 1, 0, 2, Q("49.353659 mm")),
])
pad19 = body17.newObject("PartDesign::Pad", "Pad018")
pad19.Profile = sketch19
pad19.Length = 21
pad19.Reversed = True
body18 = doc.addObject("PartDesign::Body", "Body017")

sketch20 = body18.newObject("Sketcher::SketchObject", "Sketch019")
sketch20.AttachmentSupport = (doc.getObject("XY_Plane017"), [""])
sketch20.MapMode = "FlatFace"
sketch20.addGeometry(Part.Circle(App.Vector(-55, 14, 0), App.Vector(0, 0, 1), 9), False)
sketch20.addConstraint([
    Sketcher.Constraint("Diameter", 0, Q("18 mm")),
    Sketcher.Constraint("DistanceX", 0, 3, -1, 1, Q("55 mm")),
    Sketcher.Constraint("DistanceY", -1, 1, 0, 3, Q("14 mm")),
])
pad20 = body18.newObject("PartDesign::Pad", "Pad019")
pad20.Profile = sketch20
pad20.Length = 21
pad20.Reversed = True
body19 = doc.addObject("PartDesign::Body", "Body018")

sketch21 = body19.newObject("Sketcher::SketchObject", "Sketch020")
sketch21.AttachmentSupport = (doc.getObject("XY_Plane018"), [""])
sketch21.MapMode = "FlatFace"
sketch21.addGeometry([
    Part.LineSegment(App.Vector(-55, -24.5, 0), App.Vector(-51, 4.5, 0)),
    Part.ArcOfCircle(Part.Circle(App.Vector(-55, 5, 0), App.Vector(0, 0, 1), 4), math.radians(-8), math.radians(172)),
    Part.LineSegment(App.Vector(-59, 5.5, 0), App.Vector(-63, -23.5, 0)),
    Part.ArcOfCircle(Part.Circle(App.Vector(-59, -24, 0), App.Vector(0, 0, 1), 4), math.radians(172), math.radians(352)),
], False)
sketch21.addConstraint([
    Sketcher.Constraint("Tangent", 0, 2, 1, 1),
    Sketcher.Constraint("Tangent", 1, 2, 2, 1),
    Sketcher.Constraint("Tangent", 2, 2, 3, 1),
    Sketcher.Constraint("Tangent", 3, 2, 0, 1),
    Sketcher.Constraint("Equal", 1, 3),
    Sketcher.Constraint("Radius", 1, Q("4 mm")),
    Sketcher.Constraint("DistanceX", 1, 3, -1, 1, Q("55 mm")),
    Sketcher.Constraint("DistanceY", -1, 1, 1, 3, Q("5 mm")),
    Sketcher.Constraint("DistanceX", 3, 3, -1, 1, Q("59 mm")),
    Sketcher.Constraint("DistanceY", 3, 3, -1, 1, Q("24 mm")),
])
pad21 = body19.newObject("PartDesign::Pad", "Pad020")
pad21.Profile = sketch21
pad21.Length = 20
pad21.Reversed = True
body20 = doc.addObject("PartDesign::Body", "Body019")

sketch22 = body20.newObject("Sketcher::SketchObject", "Sketch021")
sketch22.AttachmentSupport = (doc.getObject("XY_Plane019"), [""])
sketch22.MapMode = "FlatFace"
sketch22.addGeometry(Part.Circle(App.Vector(-60, -33, 0), App.Vector(0, 0, 1), 7), False)
sketch22.addConstraint([
    Sketcher.Constraint("Diameter", 0, Q("14 mm")),
    Sketcher.Constraint("DistanceX", 0, 3, -1, 1, Q("60 mm")),
    Sketcher.Constraint("DistanceY", 0, 3, -1, 1, Q("33 mm")),
])
pad22 = body20.newObject("PartDesign::Pad", "Pad021")
pad22.Profile = sketch22
pad22.Length = 19
pad22.Reversed = True
body21 = doc.addObject("PartDesign::Body", "Body020")

sketch23 = body21.newObject("Sketcher::SketchObject", "Sketch022")
sketch23.AttachmentSupport = (doc.getObject("XY_Plane020"), [""])
sketch23.MapMode = "FlatFace"
sketch23.addGeometry([
    Part.LineSegment(App.Vector(-57.5, -58, 0), App.Vector(-57.5, -41, 0)),
    Part.ArcOfCircle(Part.Circle(App.Vector(-61, -41, 0), App.Vector(0, 0, 1), 3.5), math.radians(0), math.radians(180)),
    Part.LineSegment(App.Vector(-64.5, -41, 0), App.Vector(-64.5, -58, 0)),
    Part.ArcOfCircle(Part.Circle(App.Vector(-61, -58, 0), App.Vector(0, 0, 1), 3.5), math.radians(180), math.radians(360)),
], False)
sketch23.addConstraint([
    Sketcher.Constraint("Tangent", 0, 2, 1, 1),
    Sketcher.Constraint("Tangent", 1, 2, 2, 1),
    Sketcher.Constraint("Tangent", 2, 2, 3, 1),
    Sketcher.Constraint("Tangent", 3, 2, 0, 1),
    Sketcher.Constraint("Vertical", 0),
    Sketcher.Constraint("Vertical", 2),
    Sketcher.Constraint("Radius", 1, Q("3.5 mm")),
    Sketcher.Constraint("DistanceY", 0, 1, 0, 2, Q("17 mm")),
    Sketcher.Constraint("DistanceX", 1, 3, -1, 1, Q("61 mm")),
    Sketcher.Constraint("DistanceY", 1, 3, -1, 1, Q("41 mm")),
])
pad23 = body21.newObject("PartDesign::Pad", "Pad022")
pad23.Profile = sketch23
pad23.Length = 18
pad23.Reversed = True
body22 = doc.addObject("PartDesign::Body", "Body021")

sketch24 = body22.newObject("Sketcher::SketchObject", "Sketch023")
sketch24.AttachmentSupport = (doc.getObject("XY_Plane021"), [""])
sketch24.MapMode = "FlatFace"
sketch24.addGeometry(Part.Circle(App.Vector(45, 64, 0), App.Vector(0, 0, 1), 14), False)
sketch24.addConstraint([
    Sketcher.Constraint("Diameter", 0, Q("28 mm")),
    Sketcher.Constraint("DistanceX", -1, 1, 0, 3, Q("45 mm")),
    Sketcher.Constraint("DistanceY", -1, 1, 0, 3, Q("64 mm")),
])
pad24 = body22.newObject("PartDesign::Pad", "Pad023")
pad24.Profile = sketch24
pad24.Length = 24
pad24.Reversed = True
body23 = doc.addObject("PartDesign::Body", "Body022")

sketch25 = body23.newObject("Sketcher::SketchObject", "Sketch024")
sketch25.AttachmentSupport = (doc.getObject("XY_Plane022"), [""])
sketch25.MapMode = "FlatFace"
sketch25.addGeometry([
    Part.LineSegment(App.Vector(58.6, 24, 0), App.Vector(52.5, 51.3, 0)),
    Part.ArcOfCircle(Part.Circle(App.Vector(48.1, 50.3, 0), App.Vector(0, 0, 1), 4.5), math.radians(13), math.radians(193)),
    Part.LineSegment(App.Vector(43.7, 49.4, 0), App.Vector(49.8, 22.1, 0)),
    Part.ArcOfCircle(Part.Circle(App.Vector(54.2, 23, 0), App.Vector(0, 0, 1), 4.5), math.radians(-167), math.radians(13)),
], False)
sketch25.addConstraint([
    Sketcher.Constraint("Tangent", 0, 2, 1, 1),
    Sketcher.Constraint("Tangent", 1, 2, 2, 1),
    Sketcher.Constraint("Tangent", 2, 2, 3, 1),
    Sketcher.Constraint("Tangent", 3, 2, 0, 1),
    Sketcher.Constraint("Equal", 1, 3),
    Sketcher.Constraint("Radius", 1, Q("4.5 mm")),
    Sketcher.Constraint("DistanceX", 2, 2, 0, 2, Q("2.6395 mm")),
    Sketcher.Constraint("Distance", 0, Q("27.97561 mm")),
    Sketcher.Constraint("DistanceX", -1, 1, 1, 3, Q("48.073171 mm")),
    Sketcher.Constraint("DistanceY", -1, 1, 0, 2, Q("51.329268 mm")),
])
pad25 = body23.newObject("PartDesign::Pad", "Pad024")
pad25.Profile = sketch25
pad25.Length = 21
pad25.Reversed = True
body24 = doc.addObject("PartDesign::Body", "Body023")

sketch26 = body24.newObject("Sketcher::SketchObject", "Sketch025")
sketch26.AttachmentSupport = (doc.getObject("XY_Plane023"), [""])
sketch26.MapMode = "FlatFace"
sketch26.addGeometry(Part.Circle(App.Vector(55, 14, 0), App.Vector(0, 0, 1), 9), False)
sketch26.addConstraint([
    Sketcher.Constraint("Diameter", 0, Q("18 mm")),
    Sketcher.Constraint("DistanceX", -1, 1, 0, 3, Q("55 mm")),
    Sketcher.Constraint("DistanceY", -1, 1, 0, 3, Q("14 mm")),
])
pad26 = body24.newObject("PartDesign::Pad", "Pad025")
pad26.Profile = sketch26
pad26.Length = 21
pad26.Reversed = True
body25 = doc.addObject("PartDesign::Body", "Body024")

sketch27 = body25.newObject("Sketcher::SketchObject", "Sketch026")
sketch27.AttachmentSupport = (doc.getObject("XY_Plane024"), [""])
sketch27.MapMode = "FlatFace"
sketch27.addGeometry([
    Part.LineSegment(App.Vector(63, -23.5, 0), App.Vector(59, 5.5, 0)),
    Part.ArcOfCircle(Part.Circle(App.Vector(55, 5, 0), App.Vector(0, 0, 1), 4), math.radians(8), math.radians(188)),
    Part.LineSegment(App.Vector(51, 4.5, 0), App.Vector(55, -24.5, 0)),
    Part.ArcOfCircle(Part.Circle(App.Vector(59, -24, 0), App.Vector(0, 0, 1), 4), math.radians(-172), math.radians(8)),
], False)
sketch27.addConstraint([
    Sketcher.Constraint("Tangent", 0, 2, 1, 1),
    Sketcher.Constraint("Tangent", 1, 2, 2, 1),
    Sketcher.Constraint("Tangent", 2, 2, 3, 1),
    Sketcher.Constraint("Tangent", 3, 2, 0, 1),
    Sketcher.Constraint("Equal", 1, 3),
    Sketcher.Constraint("Radius", 1, Q("4 mm")),
    Sketcher.Constraint("DistanceX", -1, 1, 1, 3, Q("55 mm")),
    Sketcher.Constraint("DistanceY", -1, 1, 1, 3, Q("5 mm")),
    Sketcher.Constraint("DistanceX", -1, 1, 3, 3, Q("59 mm")),
    Sketcher.Constraint("DistanceY", 3, 3, -1, 1, Q("24 mm")),
])
pad27 = body25.newObject("PartDesign::Pad", "Pad026")
pad27.Profile = sketch27
pad27.Length = 20
pad27.Reversed = True
body26 = doc.addObject("PartDesign::Body", "Body025")

sketch28 = body26.newObject("Sketcher::SketchObject", "Sketch027")
sketch28.AttachmentSupport = (doc.getObject("XY_Plane025"), [""])
sketch28.MapMode = "FlatFace"
sketch28.addGeometry(Part.Circle(App.Vector(60, -33, 0), App.Vector(0, 0, 1), 7), False)
sketch28.addConstraint([
    Sketcher.Constraint("Diameter", 0, Q("14 mm")),
    Sketcher.Constraint("DistanceX", -1, 1, 0, 3, Q("60 mm")),
    Sketcher.Constraint("DistanceY", 0, 3, -1, 1, Q("33 mm")),
])
pad28 = body26.newObject("PartDesign::Pad", "Pad027")
pad28.Profile = sketch28
pad28.Length = 19
pad28.Reversed = True
body27 = doc.addObject("PartDesign::Body", "Body026")

sketch29 = body27.newObject("Sketcher::SketchObject", "Sketch028")
sketch29.AttachmentSupport = (doc.getObject("XY_Plane026"), [""])
sketch29.MapMode = "FlatFace"
sketch29.addGeometry([
    Part.LineSegment(App.Vector(64.5, -58, 0), App.Vector(64.5, -41, 0)),
    Part.ArcOfCircle(Part.Circle(App.Vector(61, -41, 0), App.Vector(0, 0, 1), 3.5), math.radians(0), math.radians(180)),
    Part.LineSegment(App.Vector(57.5, -41, 0), App.Vector(57.5, -58, 0)),
    Part.ArcOfCircle(Part.Circle(App.Vector(61, -58, 0), App.Vector(0, 0, 1), 3.5), math.radians(180), math.radians(360)),
], False)
sketch29.addConstraint([
    Sketcher.Constraint("Tangent", 0, 2, 1, 1),
    Sketcher.Constraint("Tangent", 1, 2, 2, 1),
    Sketcher.Constraint("Tangent", 2, 2, 3, 1),
    Sketcher.Constraint("Tangent", 3, 2, 0, 1),
    Sketcher.Constraint("Vertical", 0),
    Sketcher.Constraint("Vertical", 2),
    Sketcher.Constraint("Radius", 1, Q("3.5 mm")),
    Sketcher.Constraint("DistanceY", 0, 1, 0, 2, Q("17 mm")),
    Sketcher.Constraint("DistanceX", -1, 1, 1, 3, Q("61 mm")),
    Sketcher.Constraint("DistanceY", 1, 3, -1, 1, Q("41 mm")),
])
pad29 = body27.newObject("PartDesign::Pad", "Pad028")
pad29.Profile = sketch29
pad29.Length = 18
pad29.Reversed = True

doc.recompute()
